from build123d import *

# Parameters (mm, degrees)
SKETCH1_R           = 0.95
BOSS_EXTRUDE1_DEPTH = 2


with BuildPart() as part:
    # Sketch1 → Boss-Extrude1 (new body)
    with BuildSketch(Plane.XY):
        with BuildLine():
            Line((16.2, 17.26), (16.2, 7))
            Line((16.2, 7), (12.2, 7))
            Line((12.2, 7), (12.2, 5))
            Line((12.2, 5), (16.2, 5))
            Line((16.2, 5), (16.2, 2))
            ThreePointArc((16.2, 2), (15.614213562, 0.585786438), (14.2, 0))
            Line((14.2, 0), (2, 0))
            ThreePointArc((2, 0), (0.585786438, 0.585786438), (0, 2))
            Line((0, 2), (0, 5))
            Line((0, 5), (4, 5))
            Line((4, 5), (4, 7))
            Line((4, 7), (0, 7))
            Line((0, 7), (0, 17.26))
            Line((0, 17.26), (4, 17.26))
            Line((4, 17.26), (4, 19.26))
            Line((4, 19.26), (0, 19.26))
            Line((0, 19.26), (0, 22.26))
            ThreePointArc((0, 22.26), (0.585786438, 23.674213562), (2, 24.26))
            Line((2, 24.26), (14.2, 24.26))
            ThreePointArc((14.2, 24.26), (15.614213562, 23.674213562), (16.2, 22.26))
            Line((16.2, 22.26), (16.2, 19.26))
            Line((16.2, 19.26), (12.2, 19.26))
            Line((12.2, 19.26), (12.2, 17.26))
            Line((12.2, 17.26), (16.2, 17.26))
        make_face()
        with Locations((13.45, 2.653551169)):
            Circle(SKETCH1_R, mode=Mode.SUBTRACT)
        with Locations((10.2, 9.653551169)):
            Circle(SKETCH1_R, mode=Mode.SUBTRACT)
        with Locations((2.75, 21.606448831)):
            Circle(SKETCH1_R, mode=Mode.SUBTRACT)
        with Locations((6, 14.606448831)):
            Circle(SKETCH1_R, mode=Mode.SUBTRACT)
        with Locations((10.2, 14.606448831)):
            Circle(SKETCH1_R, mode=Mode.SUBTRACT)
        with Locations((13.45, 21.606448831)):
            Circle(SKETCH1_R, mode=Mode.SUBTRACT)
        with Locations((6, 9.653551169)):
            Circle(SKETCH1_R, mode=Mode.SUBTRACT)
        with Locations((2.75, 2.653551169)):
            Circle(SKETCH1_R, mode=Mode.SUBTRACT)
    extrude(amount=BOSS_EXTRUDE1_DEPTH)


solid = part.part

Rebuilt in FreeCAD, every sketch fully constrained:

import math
import FreeCAD as App
import Part
import Sketcher
from FreeCAD import Vector

doc = App.newDocument("Part")
body = doc.addObject("PartDesign::Body", "Body")

# Sketch on XY plane
sketch1 = body.newObject("Sketcher::SketchObject", "Sketch")
sketch1.AttachmentSupport = (doc.getObject("XY_Plane"), [""])
sketch1.MapMode = "FlatFace"
sketch1.addGeometry(Part.LineSegment(Vector(16.2, 7, 0), Vector(16.2, 17.26, 0)), False)
sketch1.addGeometry(Part.LineSegment(Vector(16.2, 17.26, 0), Vector(12.2, 17.26, 0)), False)
sketch1.addGeometry(Part.LineSegment(Vector(12.2, 17.26, 0), Vector(12.2, 19.26, 0)), False)
sketch1.addGeometry(Part.LineSegment(Vector(12.2, 19.26, 0), Vector(16.2, 19.26, 0)), False)
sketch1.addGeometry(Part.LineSegment(Vector(16.2, 19.26, 0), Vector(16.2, 22.26, 0)), False)
sketch1.addGeometry(Part.ArcOfCircle(Part.Circle(Vector(14.2, 22.26, 0), Vector(0, 0, 1), 2), math.radians(0), math.radians(90)), False)
sketch1.addGeometry(Part.LineSegment(Vector(14.2, 24.26, 0), Vector(2, 24.26, 0)), False)
sketch1.addGeometry(Part.ArcOfCircle(Part.Circle(Vector(2, 22.26, 0), Vector(0, 0, 1), 2), math.radians(90), math.radians(180)), False)
sketch1.addGeometry(Part.LineSegment(Vector(0, 22.26, 0), Vector(0, 19.26, 0)), False)
sketch1.addGeometry(Part.LineSegment(Vector(0, 19.26, 0), Vector(4, 19.26, 0)), False)
sketch1.addGeometry(Part.LineSegment(Vector(4, 19.26, 0), Vector(4, 17.26, 0)), False)
sketch1.addGeometry(Part.LineSegment(Vector(4, 17.26, 0), Vector(0, 17.26, 0)), False)
sketch1.addGeometry(Part.LineSegment(Vector(0, 17.26, 0), Vector(0, 7, 0)), False)
sketch1.addGeometry(Part.LineSegment(Vector(0, 7, 0), Vector(4, 7, 0)), False)
sketch1.addGeometry(Part.LineSegment(Vector(4, 7, 0), Vector(4, 5, 0)), False)
sketch1.addGeometry(Part.LineSegment(Vector(4, 5, 0), Vector(0, 5, 0)), False)
sketch1.addGeometry(Part.LineSegment(Vector(0, 5, 0), Vector(0, 2, 0)), False)
sketch1.addGeometry(Part.ArcOfCircle(Part.Circle(Vector(2, 2, 0), Vector(0, 0, 1), 2), math.radians(-180), math.radians(-90)), False)
sketch1.addGeometry(Part.LineSegment(Vector(2, 0, 0), Vector(14.2, 0, 0)), False)
sketch1.addGeometry(Part.ArcOfCircle(Part.Circle(Vector(14.2, 2, 0), Vector(0, 0, 1), 2), math.radians(-90), math.radians(0)), False)
sketch1.addGeometry(Part.LineSegment(Vector(16.2, 2, 0), Vector(16.2, 5, 0)), False)
sketch1.addGeometry(Part.LineSegment(Vector(16.2, 5, 0), Vector(12.2, 5, 0)), False)
sketch1.addGeometry(Part.LineSegment(Vector(12.2, 5, 0), Vector(12.2, 7, 0)), False)
sketch1.addGeometry(Part.LineSegment(Vector(12.2, 7, 0), Vector(16.2, 7, 0)), False)
sketch1.addGeometry(Part.Circle(Vector(13.45, 2.653551, 0), Vector(0, 0, 1), 0.95), False)
sketch1.addGeometry(Part.Circle(Vector(10.2, 9.653551, 0), Vector(0, 0, 1), 0.95), False)
sketch1.addGeometry(Part.Circle(Vector(2.75, 2.653551, 0), Vector(0, 0, 1), 0.95), False)
sketch1.addGeometry(Part.Circle(Vector(6, 9.653551, 0), Vector(0, 0, 1), 0.95), False)
sketch1.addGeometry(Part.Circle(Vector(10.2, 14.606449, 0), Vector(0, 0, 1), 0.95), False)
sketch1.addGeometry(Part.Circle(Vector(13.45, 21.606449, 0), Vector(0, 0, 1), 0.95), False)
sketch1.addGeometry(Part.Circle(Vector(6, 14.606449, 0), Vector(0, 0, 1), 0.95), False)
sketch1.addGeometry(Part.Circle(Vector(2.75, 21.606449, 0), Vector(0, 0, 1), 0.95), False)
sketch1.addConstraint(Sketcher.Constraint("Coincident", 0, 2, 1, 1))
sketch1.addConstraint(Sketcher.Constraint("Coincident", 1, 2, 2, 1))
sketch1.addConstraint(Sketcher.Constraint("Coincident", 2, 2, 3, 1))
sketch1.addConstraint(Sketcher.Constraint("Coincident", 3, 2, 4, 1))
sketch1.addConstraint(Sketcher.Constraint("Tangent", 4, 2, 5, 1))
sketch1.addConstraint(Sketcher.Constraint("Tangent", 5, 2, 6, 1))
sketch1.addConstraint(Sketcher.Constraint("Tangent", 6, 2, 7, 1))
sketch1.addConstraint(Sketcher.Constraint("Tangent", 7, 2, 8, 1))
sketch1.addConstraint(Sketcher.Constraint("Coincident", 8, 2, 9, 1))
sketch1.addConstraint(Sketcher.Constraint("Coincident", 9, 2, 10, 1))
sketch1.addConstraint(Sketcher.Constraint("Coincident", 10, 2, 11, 1))
sketch1.addConstraint(Sketcher.Constraint("Coincident", 11, 2, 12, 1))
sketch1.addConstraint(Sketcher.Constraint("Coincident", 12, 2, 13, 1))
sketch1.addConstraint(Sketcher.Constraint("Coincident", 13, 2, 14, 1))
sketch1.addConstraint(Sketcher.Constraint("Coincident", 14, 2, 15, 1))
sketch1.addConstraint(Sketcher.Constraint("Coincident", 15, 2, 16, 1))
sketch1.addConstraint(Sketcher.Constraint("Tangent", 16, 2, 17, 1))
sketch1.addConstraint(Sketcher.Constraint("Tangent", 17, 2, 18, 1))
sketch1.addConstraint(Sketcher.Constraint("Tangent", 18, 2, 19, 1))
sketch1.addConstraint(Sketcher.Constraint("Tangent", 19, 2, 20, 1))
sketch1.addConstraint(Sketcher.Constraint("Coincident", 20, 2, 21, 1))
sketch1.addConstraint(Sketcher.Constraint("Coincident", 21, 2, 22, 1))
sketch1.addConstraint(Sketcher.Constraint("Coincident", 22, 2, 23, 1))
sketch1.addConstraint(Sketcher.Constraint("Coincident", 23, 2, 0, 1))
sketch1.addConstraint(Sketcher.Constraint("Vertical", 0))
sketch1.addConstraint(Sketcher.Constraint("Horizontal", 1))
sketch1.addConstraint(Sketcher.Constraint("Vertical", 2))
sketch1.addConstraint(Sketcher.Constraint("Horizontal", 3))
sketch1.addConstraint(Sketcher.Constraint("Vertical", 4))
sketch1.addConstraint(Sketcher.Constraint("Horizontal", 6))
sketch1.addConstraint(Sketcher.Constraint("Vertical", 8))
sketch1.addConstraint(Sketcher.Constraint("Horizontal", 9))
sketch1.addConstraint(Sketcher.Constraint("Vertical", 10))
sketch1.addConstraint(Sketcher.Constraint("Horizontal", 11))
sketch1.addConstraint(Sketcher.Constraint("Vertical", 12))
sketch1.addConstraint(Sketcher.Constraint("Horizontal", 13))
sketch1.addConstraint(Sketcher.Constraint("Vertical", 14))
sketch1.addConstraint(Sketcher.Constraint("Horizontal", 15))
sketch1.addConstraint(Sketcher.Constraint("Vertical", 16))
sketch1.addConstraint(Sketcher.Constraint("Horizontal", 18))
sketch1.addConstraint(Sketcher.Constraint("Vertical", 20))
sketch1.addConstraint(Sketcher.Constraint("Horizontal", 21))
sketch1.addConstraint(Sketcher.Constraint("Vertical", 22))
sketch1.addConstraint(Sketcher.Constraint("Horizontal", 23))
sketch1.addConstraint(Sketcher.Constraint("Equal", 5, 7))
sketch1.addConstraint(Sketcher.Constraint("Equal", 7, 17))
sketch1.addConstraint(Sketcher.Constraint("Equal", 17, 19))
sketch1.addConstraint(Sketcher.Constraint("Equal", 24, 25))
sketch1.addConstraint(Sketcher.Constraint("Equal", 25, 26))
sketch1.addConstraint(Sketcher.Constraint("Equal", 26, 27))
sketch1.addConstraint(Sketcher.Constraint("Equal", 27, 28))
sketch1.addConstraint(Sketcher.Constraint("Equal", 28, 29))
sketch1.addConstraint(Sketcher.Constraint("Equal", 29, 30))
sketch1.addConstraint(Sketcher.Constraint("Equal", 30, 31))
sketch1.addConstraint(Sketcher.Constraint("PointOnObject", 7, 2, -2))
sketch1.addConstraint(Sketcher.Constraint("PointOnObject", 11, 2, -2))
sketch1.addConstraint(Sketcher.Constraint("PointOnObject", 15, 2, -2))
sketch1.addConstraint(Sketcher.Constraint("PointOnObject", 17, 2, -1))
sketch1.addConstraint(Sketcher.Constraint("Horizontal", 24, 3, 26, 3))
sketch1.addConstraint(Sketcher.Constraint("Horizontal", 25, 3, 27, 3))
sketch1.addConstraint(Sketcher.Constraint("Horizontal", 28, 3, 30, 3))
sketch1.addConstraint(Sketcher.Constraint("Horizontal", 29, 3, 31, 3))
sketch1.addConstraint(Sketcher.Constraint("Horizontal", 3, 2, 8, 2))
sketch1.addConstraint(Sketcher.Constraint("Horizontal", 1, 2, 10, 2))
sketch1.addConstraint(Sketcher.Constraint("Horizontal", 15, 2, 20, 2))
sketch1.addConstraint(Sketcher.Constraint("Horizontal", 13, 2, 22, 2))
sketch1.addConstraint(Sketcher.Constraint("Vertical", 5, 3, 19, 3))
sketch1.addConstraint(Sketcher.Constraint("Vertical", 25, 3, 28, 3))
sketch1.addConstraint(Sketcher.Constraint("Vertical", 24, 3, 29, 3))
sketch1.addConstraint(Sketcher.Constraint("Vertical", 27, 3, 30, 3))
sketch1.addConstraint(Sketcher.Constraint("Vertical", 26, 3, 31, 3))
sketch1.addConstraint(Sketcher.Constraint("Vertical", 0, 2, 3, 2))
sketch1.addConstraint(Sketcher.Constraint("Vertical", 10, 2, 13, 2))
sketch1.addConstraint(Sketcher.Constraint("Vertical", 2, 2, 21, 2))
sketch1.addConstraint(Sketcher.Constraint("Equal", 3, 9))
sketch1.addConstraint(Sketcher.Constraint("Equal", 10, 14))
sketch1.addConstraint(Sketcher.Constraint("Equal", 8, 16))
sketch1.addConstraint(Sketcher.Constraint("Radius", 5, 2.0))
sketch1.addConstraint(Sketcher.Constraint("Diameter", 24, 1.9))
sketch1.addConstraint(Sketcher.Constraint("DistanceX", 1, 2, 1, 1, 4.0))
sketch1.addConstraint(Sketcher.Constraint("DistanceY", 2, 1, 2, 2, 2.0))
sketch1.addConstraint(Sketcher.Constraint("DistanceY", 4, 1, 4, 2, 3.0))
sketch1.addConstraint(Sketcher.Constraint("DistanceX", 6, 2, 6, 1, 12.2))
sketch1.addConstraint(Sketcher.Constraint("DistanceX", -1, 1, 27, 3, 6.0))
sketch1.addConstraint(Sketcher.Constraint("DistanceY", 24, 3, 25, 3, 7.0))
sketch1.addConstraint(Sketcher.Constraint("DistanceX", 25, 3, 19, 3, 4.0))
sketch1.addConstraint(Sketcher.Constraint("DistanceY", 28, 3, 29, 3, 7.0))
sketch1.addConstraint(Sketcher.Constraint("DistanceY", 0, 1, 0, 2, 10.26))
sketch1.addConstraint(Sketcher.Constraint("DistanceX", 26, 3, 24, 3, 10.7))
sketch1.addConstraint(Sketcher.Constraint("DistanceX", -1, 1, 24, 3, 13.45))
sketch1.addConstraint(Sketcher.Constraint("DistanceY", -1, 1, 24, 3, 2.653551))
sketch1.addConstraint(Sketcher.Constraint("DistanceY", -1, 1, 28, 3, 14.606449))
pad1 = body.newObject("PartDesign::Pad", "Pad")
pad1.Profile = sketch1
pad1.Length = 2

doc.recompute()
